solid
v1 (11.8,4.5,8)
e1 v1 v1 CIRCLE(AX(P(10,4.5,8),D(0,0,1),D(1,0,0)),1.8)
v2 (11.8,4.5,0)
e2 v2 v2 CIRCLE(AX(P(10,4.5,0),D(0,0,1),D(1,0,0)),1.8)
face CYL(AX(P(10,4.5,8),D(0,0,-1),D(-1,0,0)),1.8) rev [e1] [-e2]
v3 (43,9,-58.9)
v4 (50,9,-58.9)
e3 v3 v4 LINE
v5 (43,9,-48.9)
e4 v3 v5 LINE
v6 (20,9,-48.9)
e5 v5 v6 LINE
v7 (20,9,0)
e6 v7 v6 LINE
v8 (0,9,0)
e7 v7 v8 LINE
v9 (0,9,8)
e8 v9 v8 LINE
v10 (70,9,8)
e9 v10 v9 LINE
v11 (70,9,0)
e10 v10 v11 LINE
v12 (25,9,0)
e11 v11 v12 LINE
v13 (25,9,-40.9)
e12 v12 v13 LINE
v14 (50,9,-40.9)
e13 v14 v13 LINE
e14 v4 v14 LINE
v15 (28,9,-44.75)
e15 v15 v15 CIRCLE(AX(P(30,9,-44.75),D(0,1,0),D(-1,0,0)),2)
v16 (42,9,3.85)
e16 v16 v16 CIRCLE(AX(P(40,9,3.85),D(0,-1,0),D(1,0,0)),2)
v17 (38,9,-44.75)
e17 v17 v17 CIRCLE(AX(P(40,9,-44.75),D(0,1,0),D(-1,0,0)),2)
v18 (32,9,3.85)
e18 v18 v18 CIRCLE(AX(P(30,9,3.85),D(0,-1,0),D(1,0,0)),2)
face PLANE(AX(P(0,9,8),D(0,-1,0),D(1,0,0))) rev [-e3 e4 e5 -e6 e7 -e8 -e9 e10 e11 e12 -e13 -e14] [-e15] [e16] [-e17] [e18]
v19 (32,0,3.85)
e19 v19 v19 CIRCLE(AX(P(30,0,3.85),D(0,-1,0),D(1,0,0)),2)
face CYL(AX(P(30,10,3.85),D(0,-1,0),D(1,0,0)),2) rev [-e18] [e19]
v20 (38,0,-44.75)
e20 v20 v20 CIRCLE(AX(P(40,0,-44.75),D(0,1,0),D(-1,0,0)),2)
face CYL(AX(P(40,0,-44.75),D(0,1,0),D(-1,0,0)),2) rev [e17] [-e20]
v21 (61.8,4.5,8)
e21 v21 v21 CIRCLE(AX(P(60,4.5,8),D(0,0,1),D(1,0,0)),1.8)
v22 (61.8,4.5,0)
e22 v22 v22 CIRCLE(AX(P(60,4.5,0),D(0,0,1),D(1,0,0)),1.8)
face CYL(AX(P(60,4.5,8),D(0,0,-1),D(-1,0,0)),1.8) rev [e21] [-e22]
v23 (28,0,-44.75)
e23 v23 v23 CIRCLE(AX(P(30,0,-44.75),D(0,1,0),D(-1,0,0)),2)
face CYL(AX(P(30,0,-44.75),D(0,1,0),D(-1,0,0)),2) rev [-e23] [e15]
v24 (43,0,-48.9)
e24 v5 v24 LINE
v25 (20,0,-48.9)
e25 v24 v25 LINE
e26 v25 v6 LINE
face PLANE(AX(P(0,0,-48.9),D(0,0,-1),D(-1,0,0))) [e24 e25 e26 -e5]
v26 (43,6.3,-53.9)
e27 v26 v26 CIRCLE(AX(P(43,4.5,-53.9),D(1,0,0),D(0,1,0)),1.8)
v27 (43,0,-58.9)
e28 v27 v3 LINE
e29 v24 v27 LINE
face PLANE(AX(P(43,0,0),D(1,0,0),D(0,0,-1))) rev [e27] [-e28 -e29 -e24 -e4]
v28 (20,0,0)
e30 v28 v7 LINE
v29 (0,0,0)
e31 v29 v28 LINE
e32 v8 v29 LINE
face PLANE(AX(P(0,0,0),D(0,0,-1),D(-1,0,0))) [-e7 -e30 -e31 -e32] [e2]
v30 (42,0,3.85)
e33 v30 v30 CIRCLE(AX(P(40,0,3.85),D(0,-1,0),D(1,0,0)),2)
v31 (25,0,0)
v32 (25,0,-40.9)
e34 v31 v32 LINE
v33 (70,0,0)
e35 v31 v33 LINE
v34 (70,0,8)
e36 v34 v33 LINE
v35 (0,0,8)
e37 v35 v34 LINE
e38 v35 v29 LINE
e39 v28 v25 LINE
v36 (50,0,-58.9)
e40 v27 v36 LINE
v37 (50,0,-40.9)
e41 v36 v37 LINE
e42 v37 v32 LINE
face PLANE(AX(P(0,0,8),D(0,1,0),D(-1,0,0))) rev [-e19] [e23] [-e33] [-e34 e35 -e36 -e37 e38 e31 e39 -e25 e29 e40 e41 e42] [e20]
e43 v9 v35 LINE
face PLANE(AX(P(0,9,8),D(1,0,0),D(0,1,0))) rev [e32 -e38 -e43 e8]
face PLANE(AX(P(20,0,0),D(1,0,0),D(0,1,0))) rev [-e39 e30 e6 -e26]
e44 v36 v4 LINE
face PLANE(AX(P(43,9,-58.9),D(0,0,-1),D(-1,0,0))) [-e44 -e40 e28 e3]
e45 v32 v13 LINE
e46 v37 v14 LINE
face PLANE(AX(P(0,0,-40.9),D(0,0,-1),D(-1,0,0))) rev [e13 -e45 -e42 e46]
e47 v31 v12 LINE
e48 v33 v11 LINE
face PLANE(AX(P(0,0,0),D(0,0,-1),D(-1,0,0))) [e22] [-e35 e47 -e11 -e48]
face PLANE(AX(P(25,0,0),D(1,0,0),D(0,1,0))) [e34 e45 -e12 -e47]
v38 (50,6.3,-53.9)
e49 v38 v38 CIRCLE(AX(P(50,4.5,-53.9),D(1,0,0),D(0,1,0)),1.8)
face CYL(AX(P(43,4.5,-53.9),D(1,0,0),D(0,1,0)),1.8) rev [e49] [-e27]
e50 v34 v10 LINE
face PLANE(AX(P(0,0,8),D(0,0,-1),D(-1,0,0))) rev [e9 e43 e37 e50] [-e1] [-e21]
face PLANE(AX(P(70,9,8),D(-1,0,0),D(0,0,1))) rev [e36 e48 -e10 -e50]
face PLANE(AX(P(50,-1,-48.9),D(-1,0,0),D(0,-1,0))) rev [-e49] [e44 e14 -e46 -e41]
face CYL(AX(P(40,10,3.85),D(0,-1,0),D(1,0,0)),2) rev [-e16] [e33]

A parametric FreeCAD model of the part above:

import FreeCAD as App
import Part
import Sketcher
from FreeCAD import Vector
Q = App.Units.Quantity


def add_polygon(sketch, points):
    """Adds a closed chain of lines whose ends are joined by coincident constraints."""
    first, n = sketch.GeometryCount, len(points)
    for a, b in zip(points, points[1:] + points[:1]):
        sketch.addGeometry(Part.LineSegment(App.Vector(*a, 0), App.Vector(*b, 0)), False)
    for i in range(n):
        sketch.addConstraint(Sketcher.Constraint("Coincident", first + i, 2, first + (i + 1) % n, 1))

doc = App.newDocument("Part")
body = doc.addObject("PartDesign::Body", "Body")

# Sketch on XY plane
sketch1 = doc.addObject("Sketcher::SketchObject", "Sketch")
body.addObject(sketch1)
sketch1.AttachmentSupport = (doc.XY_Plane, [""])
sketch1.MapMode = "FlatFace"
add_polygon(sketch1, [(0, 9), (0, 0), (70, 0), (70, 9)])  # lines 0-3
sketch1.addGeometry(Part.Circle(Vector(10, 4.5, 0), Vector(0, 0, 1), 1.8), False)  # 4
sketch1.addGeometry(Part.Circle(Vector(60, 4.5, 0), Vector(0, 0, 1), 1.8), False)  # 5
sketch1.addConstraint([
    Sketcher.Constraint("Vertical", 0),
    Sketcher.Constraint("Horizontal", 1),
    Sketcher.Constraint("Vertical", 2),
    Sketcher.Constraint("Horizontal", 3),
    Sketcher.Constraint("Coincident", 0, 2, -1, 1),
    Sketcher.Constraint("Equal", 4, 5),
    Sketcher.Constraint("Horizontal", 4, 3, 5, 3),
    Sketcher.Constraint("Diameter", 4, Q("3.6 mm")),
    Sketcher.Constraint("DistanceX", 1, 1, 1, 2, Q("70 mm")),
    Sketcher.Constraint("DistanceY", 0, 2, 0, 1, Q("9 mm")),
    Sketcher.Constraint("DistanceX", -1, 1, 4, 3, Q("10 mm")),
    Sketcher.Constraint("DistanceX", -1, 1, 5, 3, Q("60 mm")),
    Sketcher.Constraint("DistanceY", -1, 1, 4, 3, Q("4.5 mm")),
])
pad1 = doc.addObject("PartDesign::Pad", "Pad")
body.addObject(pad1)
pad1.Profile = sketch1
pad1.Length = 8

# Sketch on XZ plane
sketch2 = doc.addObject("Sketcher::SketchObject", "Sketch001")
body.addObject(sketch2)
sketch2.AttachmentSupport = (doc.XZ_Plane, [""])
sketch2.MapMode = "FlatFace"
sketch2.addGeometry([
    Part.Circle(Vector(30, 3.9, 0), Vector(0, 0, 1), 2),
    Part.Circle(Vector(40, 3.9, 0), Vector(0, 0, 1), 2),
], False)
sketch2.addConstraint([
    Sketcher.Constraint("Equal", 0, 1),
    Sketcher.Constraint("Horizontal", 0, 3, 1, 3),
    Sketcher.Constraint("Diameter", 0, Q("4 mm")),
    Sketcher.Constraint("DistanceX", -1, 1, 0, 3, Q("30 mm")),
    Sketcher.Constraint("DistanceX", -1, 1, 1, 3, Q("40 mm")),
    Sketcher.Constraint("DistanceY", -1, 1, 0, 3, Q("3.85 mm")),
])
pocket1 = doc.addObject("PartDesign::Pocket", "Pocket")
body.addObject(pocket1)
pocket1.Profile = sketch2
pocket1.Length = 10

# Sketch on XZ plane
sketch3 = doc.addObject("Sketcher::SketchObject", "Sketch002")
body.addObject(sketch3)
sketch3.AttachmentSupport = (doc.XZ_Plane, [""])
sketch3.MapMode = "FlatFace"
sketch3.AttachmentOffset = App.Placement(Vector(0, 0, -9), App.Rotation())
add_polygon(sketch3, [(50, 0), (55, 0), (55, -48.9), (20, -48.9), (20, 0), (25, 0), (25, -40.9), (50, -40.9)])  # lines 0-7
sketch3.addGeometry(Part.Circle(Vector(30, -44.8, 0), Vector(0, 0, 1), 2), False)  # 8
sketch3.addGeometry(Part.Circle(Vector(40, -44.8, 0), Vector(0, 0, 1), 2), False)  # 9
sketch3.addConstraint([
    Sketcher.Constraint("Horizontal", 0),
    Sketcher.Constraint("Vertical", 1),
    Sketcher.Constraint("Horizontal", 2),
    Sketcher.Constraint("Vertical", 3),
    Sketcher.Constraint("Horizontal", 4),
    Sketcher.Constraint("Vertical", 5),
    Sketcher.Constraint("Horizontal", 6),
    Sketcher.Constraint("Vertical", 7),
    Sketcher.Constraint("Equal", 8, 9),
    Sketcher.Constraint("PointOnObject", 0, 2, -1),
    Sketcher.Constraint("PointOnObject", 3, 2, -1),
    Sketcher.Constraint("Horizontal", 8, 3, 9, 3),
    Sketcher.Constraint("Equal", 0, 4),
    Sketcher.Constraint("Diameter", 8, Q("4 mm")),
    Sketcher.Constraint("DistanceX", 0, 1, 0, 2, Q("5 mm")),
    Sketcher.Constraint("DistanceX", 2, 2, 2, 1, Q("35 mm")),
    Sketcher.Constraint("DistanceY", 1, 2, 1, 1, Q("48.9 mm")),
    Sketcher.Constraint("DistanceY", 5, 2, 5, 1, Q("40.9 mm")),
    Sketcher.Constraint("DistanceX", -1, 1, 8, 3, Q("30 mm")),
    Sketcher.Constraint("DistanceX", -1, 1, 9, 3, Q("40 mm")),
    Sketcher.Constraint("DistanceX", -1, 1, 0, 2, Q("55 mm")),
    Sketcher.Constraint("DistanceY", 8, 3, -1, 1, Q("44.75 mm")),
])
pad2 = doc.addObject("PartDesign::Pad", "Pad001")
body.addObject(pad2)
pad2.Profile = sketch3
pad2.Length = 9

# Sketch on XZ plane
sketch4 = doc.addObject("Sketcher::SketchObject", "Sketch003")
body.addObject(sketch4)
sketch4.AttachmentSupport = (doc.XZ_Plane, [""])
sketch4.MapMode = "FlatFace"
sketch4.AttachmentOffset = App.Placement(Vector(0, 0, -9), App.Rotation())
add_polygon(sketch4, [(50, -49), (50, 0), (55, 0), (55, -49)])  # lines 0-3
sketch4.addConstraint([
    Sketcher.Constraint("Vertical", 0),
    Sketcher.Constraint("Horizontal", 1),
    Sketcher.Constraint("Vertical", 2),
    Sketcher.Constraint("Horizontal", 3),
    Sketcher.Constraint("PointOnObject", 0, 2, -1),
    Sketcher.Constraint("DistanceX", 1, 1, 1, 2, Q("5 mm")),
    Sketcher.Constraint("DistanceY", 0, 1, 0, 2, Q("48.9 mm")),
    Sketcher.Constraint("DistanceX", -1, 1, 0, 2, Q("50 mm")),
])
pocket2 = doc.addObject("PartDesign::Pocket", "Pocket001")
body.addObject(pocket2)
pocket2.Profile = sketch4
pocket2.Length = 10
pocket2.Reversed = True

# Sketch on YZ plane
sketch5 = doc.addObject("Sketcher::SketchObject", "Sketch004")
body.addObject(sketch5)
sketch5.AttachmentSupport = (doc.YZ_Plane, [""])
sketch5.MapMode = "FlatFace"
sketch5.AttachmentOffset = App.Placement(Vector(0, 0, 50), App.Rotation())
add_polygon(sketch5, [(9, -48.9), (0, -48.9), (0, -58.9), (9, -58.9)])  # lines 0-3
sketch5.addGeometry(Part.Circle(Vector(4.5, -53.9, 0), Vector(0, 0, 1), 1.8), False)  # 4
sketch5.addConstraint([
    Sketcher.Constraint("Horizontal", 0),
    Sketcher.Constraint("Vertical", 1),
    Sketcher.Constraint("Horizontal", 2),
    Sketcher.Constraint("Vertical", 3),
    Sketcher.Constraint("PointOnObject", 0, 2, -2),
    Sketcher.Constraint("Diameter", 4, Q("3.6 mm")),
    Sketcher.Constraint("DistanceX", 0, 2, 0, 1, Q("9 mm")),
    Sketcher.Constraint("DistanceY", 1, 2, 1, 1, Q("10 mm")),
    Sketcher.Constraint("DistanceY", 4, 3, 0, 2, Q("5 mm")),
    Sketcher.Constraint("DistanceX", -1, 1, 4, 3, Q("4.5 mm")),
    Sketcher.Constraint("DistanceY", 4, 3, -1, 1, Q("53.9 mm")),
])
pad3 = doc.addObject("PartDesign::Pad", "Pad002")
body.addObject(pad3)
pad3.Profile = sketch5
pad3.Length = 7
pad3.Reversed = True

doc.recompute()
